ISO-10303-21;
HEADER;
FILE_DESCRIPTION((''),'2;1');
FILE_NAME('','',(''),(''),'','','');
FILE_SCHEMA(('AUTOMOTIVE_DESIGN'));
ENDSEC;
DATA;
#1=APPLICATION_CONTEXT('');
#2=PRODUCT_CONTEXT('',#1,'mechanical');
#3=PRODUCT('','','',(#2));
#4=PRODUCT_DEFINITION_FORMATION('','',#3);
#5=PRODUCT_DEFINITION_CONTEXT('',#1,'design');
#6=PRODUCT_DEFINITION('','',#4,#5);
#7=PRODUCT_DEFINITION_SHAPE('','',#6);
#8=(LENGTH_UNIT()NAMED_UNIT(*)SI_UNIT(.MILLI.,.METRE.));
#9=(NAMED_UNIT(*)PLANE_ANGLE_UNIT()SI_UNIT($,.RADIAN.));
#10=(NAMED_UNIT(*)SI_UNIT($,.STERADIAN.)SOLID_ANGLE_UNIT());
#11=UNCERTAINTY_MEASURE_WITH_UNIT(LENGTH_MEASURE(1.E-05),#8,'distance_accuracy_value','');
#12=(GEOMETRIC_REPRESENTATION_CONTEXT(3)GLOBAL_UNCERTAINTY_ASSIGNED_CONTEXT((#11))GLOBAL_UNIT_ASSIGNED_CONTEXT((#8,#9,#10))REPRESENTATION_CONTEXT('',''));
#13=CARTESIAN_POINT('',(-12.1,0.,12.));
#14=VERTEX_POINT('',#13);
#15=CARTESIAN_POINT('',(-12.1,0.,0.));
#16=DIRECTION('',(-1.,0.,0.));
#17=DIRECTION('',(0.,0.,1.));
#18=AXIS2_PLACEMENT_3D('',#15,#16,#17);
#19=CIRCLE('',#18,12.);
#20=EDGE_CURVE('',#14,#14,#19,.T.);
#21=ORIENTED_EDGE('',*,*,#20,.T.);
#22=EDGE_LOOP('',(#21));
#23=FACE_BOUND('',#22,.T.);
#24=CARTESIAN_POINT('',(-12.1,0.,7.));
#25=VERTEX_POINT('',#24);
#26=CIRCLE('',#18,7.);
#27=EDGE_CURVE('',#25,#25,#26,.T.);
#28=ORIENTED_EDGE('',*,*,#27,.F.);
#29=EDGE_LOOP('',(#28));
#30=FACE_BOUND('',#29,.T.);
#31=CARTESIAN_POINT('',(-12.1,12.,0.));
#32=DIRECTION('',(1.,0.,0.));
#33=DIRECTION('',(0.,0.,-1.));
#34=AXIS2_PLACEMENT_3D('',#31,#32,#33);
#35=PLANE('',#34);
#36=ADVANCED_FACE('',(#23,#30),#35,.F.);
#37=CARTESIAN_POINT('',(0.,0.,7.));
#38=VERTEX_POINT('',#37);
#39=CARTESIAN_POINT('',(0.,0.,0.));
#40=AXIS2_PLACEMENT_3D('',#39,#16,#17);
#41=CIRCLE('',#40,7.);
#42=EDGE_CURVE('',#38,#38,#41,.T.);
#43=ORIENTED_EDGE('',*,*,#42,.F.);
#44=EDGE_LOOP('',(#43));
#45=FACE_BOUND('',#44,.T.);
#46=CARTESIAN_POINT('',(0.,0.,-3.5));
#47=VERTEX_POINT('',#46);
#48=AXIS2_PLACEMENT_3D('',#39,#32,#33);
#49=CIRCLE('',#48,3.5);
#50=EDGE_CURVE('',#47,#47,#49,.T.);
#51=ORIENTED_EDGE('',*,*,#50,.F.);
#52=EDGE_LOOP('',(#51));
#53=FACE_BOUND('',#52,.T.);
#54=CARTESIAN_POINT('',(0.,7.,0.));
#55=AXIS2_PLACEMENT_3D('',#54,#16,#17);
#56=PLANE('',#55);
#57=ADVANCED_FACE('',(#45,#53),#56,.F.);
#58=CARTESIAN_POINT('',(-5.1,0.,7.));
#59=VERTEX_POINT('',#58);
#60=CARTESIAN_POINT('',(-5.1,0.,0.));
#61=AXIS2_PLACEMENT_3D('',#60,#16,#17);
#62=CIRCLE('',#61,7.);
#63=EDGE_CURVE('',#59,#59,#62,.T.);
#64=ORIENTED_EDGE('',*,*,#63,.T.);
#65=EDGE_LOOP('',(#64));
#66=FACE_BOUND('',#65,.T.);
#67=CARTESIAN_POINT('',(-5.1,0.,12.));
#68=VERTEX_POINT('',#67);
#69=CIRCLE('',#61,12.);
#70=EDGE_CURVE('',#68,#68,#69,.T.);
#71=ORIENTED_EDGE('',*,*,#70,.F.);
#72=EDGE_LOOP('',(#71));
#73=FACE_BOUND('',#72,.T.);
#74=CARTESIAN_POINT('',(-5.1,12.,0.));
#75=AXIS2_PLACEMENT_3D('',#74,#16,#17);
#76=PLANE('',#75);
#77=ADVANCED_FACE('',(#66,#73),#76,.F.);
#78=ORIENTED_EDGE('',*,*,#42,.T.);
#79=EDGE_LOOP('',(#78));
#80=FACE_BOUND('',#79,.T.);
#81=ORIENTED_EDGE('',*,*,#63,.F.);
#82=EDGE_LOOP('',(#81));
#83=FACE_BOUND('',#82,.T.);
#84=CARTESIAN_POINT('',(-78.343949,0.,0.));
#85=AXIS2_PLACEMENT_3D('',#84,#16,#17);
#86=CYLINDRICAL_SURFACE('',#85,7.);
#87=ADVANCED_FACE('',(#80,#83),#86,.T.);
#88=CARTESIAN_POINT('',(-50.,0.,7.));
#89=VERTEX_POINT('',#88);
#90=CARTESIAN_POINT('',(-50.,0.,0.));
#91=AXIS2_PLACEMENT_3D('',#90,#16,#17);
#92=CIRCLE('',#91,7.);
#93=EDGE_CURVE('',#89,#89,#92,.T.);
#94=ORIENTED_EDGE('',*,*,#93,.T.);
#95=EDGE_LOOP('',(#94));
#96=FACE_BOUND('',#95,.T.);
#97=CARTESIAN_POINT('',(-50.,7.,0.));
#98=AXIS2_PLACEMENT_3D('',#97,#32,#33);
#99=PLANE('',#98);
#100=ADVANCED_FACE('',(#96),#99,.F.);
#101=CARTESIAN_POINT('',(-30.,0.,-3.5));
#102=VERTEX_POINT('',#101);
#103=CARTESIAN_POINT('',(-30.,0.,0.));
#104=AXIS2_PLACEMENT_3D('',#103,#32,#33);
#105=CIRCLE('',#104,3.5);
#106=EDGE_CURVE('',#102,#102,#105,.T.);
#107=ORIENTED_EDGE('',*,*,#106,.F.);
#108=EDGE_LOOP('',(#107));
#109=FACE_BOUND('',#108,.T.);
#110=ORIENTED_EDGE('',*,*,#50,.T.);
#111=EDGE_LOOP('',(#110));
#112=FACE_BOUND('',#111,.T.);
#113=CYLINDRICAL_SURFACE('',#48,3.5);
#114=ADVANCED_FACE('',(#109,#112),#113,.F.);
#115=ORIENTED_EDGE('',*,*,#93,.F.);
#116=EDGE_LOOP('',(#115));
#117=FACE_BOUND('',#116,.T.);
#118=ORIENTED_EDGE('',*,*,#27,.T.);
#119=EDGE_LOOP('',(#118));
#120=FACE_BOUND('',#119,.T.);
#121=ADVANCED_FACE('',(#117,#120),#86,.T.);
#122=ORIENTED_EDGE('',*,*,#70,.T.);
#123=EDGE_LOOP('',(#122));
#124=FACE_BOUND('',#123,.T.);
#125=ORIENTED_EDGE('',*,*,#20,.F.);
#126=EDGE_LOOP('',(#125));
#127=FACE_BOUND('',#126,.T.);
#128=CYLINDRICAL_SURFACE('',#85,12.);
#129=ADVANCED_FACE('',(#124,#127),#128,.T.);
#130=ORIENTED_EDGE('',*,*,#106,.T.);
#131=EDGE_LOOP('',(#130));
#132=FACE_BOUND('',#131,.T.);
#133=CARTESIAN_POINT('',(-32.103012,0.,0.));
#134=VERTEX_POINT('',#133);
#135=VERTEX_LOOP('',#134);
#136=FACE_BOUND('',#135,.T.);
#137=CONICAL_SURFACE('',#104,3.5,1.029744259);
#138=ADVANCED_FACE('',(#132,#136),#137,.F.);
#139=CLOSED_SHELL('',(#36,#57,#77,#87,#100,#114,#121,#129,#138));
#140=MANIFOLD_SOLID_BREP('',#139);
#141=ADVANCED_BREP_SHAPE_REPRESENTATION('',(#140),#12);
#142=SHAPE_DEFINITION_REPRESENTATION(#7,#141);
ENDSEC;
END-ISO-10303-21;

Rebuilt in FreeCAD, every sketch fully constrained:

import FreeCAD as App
import Part
import Sketcher

V = App.Vector

doc = App.newDocument("Part")
body = doc.addObject("PartDesign::Body", "Body")

# Sketch on XY plane
sketch1 = body.newObject("Sketcher::SketchObject", "Sketch")
sketch1.AttachmentSupport = (doc.getObject("XY_Plane"), [""])
sketch1.MapMode = "FlatFace"
sketch1.addGeometry(Part.LineSegment(V(-5.1, 7, 0), V(-5.1, 12, 0)), False)
sketch1.addGeometry(Part.LineSegment(V(-5.1, 12, 0), V(-12.1, 12, 0)), False)
sketch1.addGeometry(Part.LineSegment(V(-12.1, 12, 0), V(-12.1, 7, 0)), False)
sketch1.addGeometry(Part.LineSegment(V(-12.1, 7, 0), V(-50, 7, 0)), False)
sketch1.addGeometry(Part.LineSegment(V(-50, 7, 0), V(-50, 0, 0)), False)
sketch1.addGeometry(Part.LineSegment(V(-50, 0, 0), V(0, 0, 0)), False)
sketch1.addGeometry(Part.LineSegment(V(0, 0, 0), V(0, 7, 0)), False)
sketch1.addGeometry(Part.LineSegment(V(0, 7, 0), V(-5.1, 7, 0)), False)
sketch1.addConstraint(Sketcher.Constraint("Coincident", 0, 2, 1, 1))
sketch1.addConstraint(Sketcher.Constraint("Coincident", 1, 2, 2, 1))
sketch1.addConstraint(Sketcher.Constraint("Coincident", 2, 2, 3, 1))
sketch1.addConstraint(Sketcher.Constraint("Coincident", 3, 2, 4, 1))
sketch1.addConstraint(Sketcher.Constraint("Coincident", 4, 2, 5, 1))
sketch1.addConstraint(Sketcher.Constraint("Coincident", 5, 2, 6, 1))
sketch1.addConstraint(Sketcher.Constraint("Coincident", 6, 2, 7, 1))
sketch1.addConstraint(Sketcher.Constraint("Coincident", 7, 2, 0, 1))
sketch1.addConstraint(Sketcher.Constraint("Vertical", 0))
sketch1.addConstraint(Sketcher.Constraint("Horizontal", 1))
sketch1.addConstraint(Sketcher.Constraint("Vertical", 2))
sketch1.addConstraint(Sketcher.Constraint("Horizontal", 3))
sketch1.addConstraint(Sketcher.Constraint("Vertical", 4))
sketch1.addConstraint(Sketcher.Constraint("Horizontal", 5))
sketch1.addConstraint(Sketcher.Constraint("Vertical", 6))
sketch1.addConstraint(Sketcher.Constraint("Horizontal", 7))
sketch1.addConstraint(Sketcher.Constraint("Coincident", 5, 2, -1, 1))
sketch1.addConstraint(Sketcher.Constraint("Horizontal", 3, 2, 6, 2))
sketch1.addConstraint(Sketcher.Constraint("Equal", 1, 4))
sketch1.addConstraint(Sketcher.Constraint("DistanceX", 1, 2, 1, 1, 7.0))
sketch1.addConstraint(Sketcher.Constraint("DistanceX", 5, 1, 5, 2, 50.0))
sketch1.addConstraint(Sketcher.Constraint("DistanceY", 0, 1, 0, 2, 5.0))
sketch1.addConstraint(Sketcher.Constraint("DistanceX", 3, 2, 3, 1, 37.9))
revolution = body.newObject("PartDesign::Revolution", "Revolution")
revolution.Profile = sketch1
revolution.ReferenceAxis = (sketch1, ["H_Axis"])
revolution.Angle = 360

# Sketch on YZ plane
sketch2 = body.newObject("Sketcher::SketchObject", "Sketch001")
sketch2.AttachmentSupport = (doc.getObject("YZ_Plane"), [""])
sketch2.MapMode = "FlatFace"
sketch2.addGeometry(Part.Circle(V(0, 0, 0), V(0, 0, 1), 3.5), False)
sketch2.addConstraint(Sketcher.Constraint("Coincident", 0, 3, -1, 1))
sketch2.addConstraint(Sketcher.Constraint("Diameter", 0, 7.0))
doc.recompute()
hole = body.newObject("PartDesign::Hole", "Hole")
hole.Profile = sketch2
hole.ThreadType = "None"
hole.Diameter = 7
hole.DepthType = "Dimension"
hole.Depth = 30
hole.DrillPoint = "Angled"
hole.DrillPointAngle = 118

doc.recompute()
